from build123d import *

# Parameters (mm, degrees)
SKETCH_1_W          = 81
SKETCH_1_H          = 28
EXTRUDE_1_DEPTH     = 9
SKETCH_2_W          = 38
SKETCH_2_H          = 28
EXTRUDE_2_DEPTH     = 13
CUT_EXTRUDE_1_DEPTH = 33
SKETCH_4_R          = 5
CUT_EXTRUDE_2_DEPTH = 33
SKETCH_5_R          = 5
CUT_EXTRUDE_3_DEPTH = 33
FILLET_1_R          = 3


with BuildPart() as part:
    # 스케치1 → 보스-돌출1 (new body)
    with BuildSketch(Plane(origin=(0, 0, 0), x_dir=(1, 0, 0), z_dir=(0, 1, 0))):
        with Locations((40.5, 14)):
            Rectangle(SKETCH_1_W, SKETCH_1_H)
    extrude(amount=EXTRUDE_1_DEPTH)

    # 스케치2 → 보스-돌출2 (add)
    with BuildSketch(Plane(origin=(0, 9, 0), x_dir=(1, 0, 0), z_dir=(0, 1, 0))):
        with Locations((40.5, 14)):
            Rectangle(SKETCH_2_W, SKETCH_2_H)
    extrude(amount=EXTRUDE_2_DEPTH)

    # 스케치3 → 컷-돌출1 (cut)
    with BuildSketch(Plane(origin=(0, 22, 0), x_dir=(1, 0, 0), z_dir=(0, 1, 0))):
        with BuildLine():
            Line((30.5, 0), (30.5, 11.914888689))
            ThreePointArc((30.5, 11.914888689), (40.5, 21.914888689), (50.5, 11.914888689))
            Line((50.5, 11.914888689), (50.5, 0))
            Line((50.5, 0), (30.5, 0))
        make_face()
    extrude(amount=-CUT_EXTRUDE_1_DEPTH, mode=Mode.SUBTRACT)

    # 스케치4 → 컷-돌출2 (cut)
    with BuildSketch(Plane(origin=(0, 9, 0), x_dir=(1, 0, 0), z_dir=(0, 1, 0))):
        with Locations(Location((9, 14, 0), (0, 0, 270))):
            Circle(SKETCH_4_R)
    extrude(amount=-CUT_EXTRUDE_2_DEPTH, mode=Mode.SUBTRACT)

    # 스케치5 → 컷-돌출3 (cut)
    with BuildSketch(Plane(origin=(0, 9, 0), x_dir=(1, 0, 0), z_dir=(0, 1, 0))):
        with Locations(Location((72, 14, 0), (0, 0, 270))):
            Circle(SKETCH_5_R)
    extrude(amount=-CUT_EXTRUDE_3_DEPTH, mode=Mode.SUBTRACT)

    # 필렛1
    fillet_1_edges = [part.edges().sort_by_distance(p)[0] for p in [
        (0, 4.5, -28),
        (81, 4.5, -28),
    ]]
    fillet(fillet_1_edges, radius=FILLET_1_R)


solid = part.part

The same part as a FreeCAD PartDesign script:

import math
import FreeCAD as App
import Part
import Sketcher
from FreeCAD import Vector


def edges_at(feature, points):
    """Names of the edges that pass closest to the given points."""
    edges = feature.Shape.Edges
    near = lambda p: min(range(len(edges)), key=lambda i: edges[i].distToShape(Part.Vertex(*p))[0])
    return sorted({f"Edge{near(p) + 1}" for p in points})


def add_polygon(sketch, points):
    """Adds a closed chain of lines whose ends are joined by coincident constraints."""
    first, n = sketch.GeometryCount, len(points)
    for a, b in zip(points, points[1:] + points[:1]):
        sketch.addGeometry(Part.LineSegment(App.Vector(*a, 0), App.Vector(*b, 0)), False)
    for i in range(n):
        sketch.addConstraint(Sketcher.Constraint("Coincident", first + i, 2, first + (i + 1) % n, 1))

doc = App.newDocument("Part")
body = doc.addObject("PartDesign::Body", "Body")

sketch1 = body.newObject("Sketcher::SketchObject", "Sketch")
sketch1.AttachmentSupport = (doc.getObject("XZ_Plane"), [""])
sketch1.MapMode = "FlatFace"
add_polygon(sketch1, [(0, -28), (0, 0), (81, 0), (81, -28)])
sketch1.addConstraint([
    Sketcher.Constraint("Vertical", 0),
    Sketcher.Constraint("Horizontal", 1),
    Sketcher.Constraint("Vertical", 2),
    Sketcher.Constraint("Horizontal", 3),
    Sketcher.Constraint("Coincident", 0, 2, -1, 1),
    Sketcher.Constraint("DistanceX", 1, 1, 1, 2, 81.0),
    Sketcher.Constraint("DistanceY", 0, 1, 0, 2, 28.0),
])
pad1 = body.newObject("PartDesign::Pad", "Pad")
pad1.Profile = sketch1
pad1.Length = 9
pad1.Reversed = True

sketch2 = body.newObject("Sketcher::SketchObject", "Sketch001")
sketch2.AttachmentSupport = (doc.getObject("XZ_Plane"), [""])
sketch2.MapMode = "FlatFace"
sketch2.AttachmentOffset = App.Placement(Vector(0, 0, -9), App.Rotation())
add_polygon(sketch2, [(21.5, -28), (21.5, 0), (59.5, 0), (59.5, -28)])
sketch2.addConstraint([
    Sketcher.Constraint("Vertical", 0),
    Sketcher.Constraint("Horizontal", 1),
    Sketcher.Constraint("Vertical", 2),
    Sketcher.Constraint("Horizontal", 3),
    Sketcher.Constraint("PointOnObject", 0, 2, -1),
    Sketcher.Constraint("DistanceX", 1, 1, 1, 2, 38.0),
    Sketcher.Constraint("DistanceY", 0, 1, 0, 2, 28.0),
    Sketcher.Constraint("DistanceX", -1, 1, 0, 2, 21.5),
])
pad2 = body.newObject("PartDesign::Pad", "Pad001")
pad2.Profile = sketch2
pad2.Length = 13
pad2.Reversed = True

sketch3 = body.newObject("Sketcher::SketchObject", "Sketch002")
sketch3.AttachmentSupport = (doc.getObject("XZ_Plane"), [""])
sketch3.MapMode = "FlatFace"
sketch3.AttachmentOffset = App.Placement(Vector(0, 0, -22), App.Rotation())
sketch3.addGeometry([
    Part.LineSegment(Vector(30.5, -11.914889, 0), Vector(30.5, 0, 0)),
    Part.LineSegment(Vector(30.5, 0, 0), Vector(50.5, 0, 0)),
    Part.LineSegment(Vector(50.5, 0, 0), Vector(50.5, -11.914889, 0)),
    Part.ArcOfCircle(Part.Circle(Vector(40.5, -11.914889, 0), Vector(0, 0, 1), 10), math.radians(180), math.radians(360)),
], False)
sketch3.addConstraint([
    Sketcher.Constraint("Coincident", 0, 2, 1, 1),
    Sketcher.Constraint("Coincident", 1, 2, 2, 1),
    Sketcher.Constraint("Tangent", 2, 2, 3, 2),
    Sketcher.Constraint("Tangent", 3, 1, 0, 1),
    Sketcher.Constraint("Vertical", 0),
    Sketcher.Constraint("Horizontal", 1),
    Sketcher.Constraint("Vertical", 2),
    Sketcher.Constraint("PointOnObject", 0, 2, -1),
    Sketcher.Constraint("Radius", 3, 10.0),
    Sketcher.Constraint("DistanceX", -1, 1, 3, 3, 40.5),
    Sketcher.Constraint("DistanceY", 0, 1, 0, 2, 11.914889),
])
pocket1 = body.newObject("PartDesign::Pocket", "Pocket")
pocket1.Profile = sketch3
pocket1.Length = 33
pocket1.Reversed = True

sketch4 = body.newObject("Sketcher::SketchObject", "Sketch003")
sketch4.AttachmentSupport = (doc.getObject("XZ_Plane"), [""])
sketch4.MapMode = "FlatFace"
sketch4.AttachmentOffset = App.Placement(Vector(0, 0, -9), App.Rotation())
sketch4.addGeometry(Part.Circle(Vector(9, -14, 0), Vector(0, 0, 1), 5), False)
sketch4.addConstraint([
    Sketcher.Constraint("Diameter", 0, 10.0),
    Sketcher.Constraint("DistanceX", -1, 1, 0, 3, 9.0),
    Sketcher.Constraint("DistanceY", 0, 3, -1, 1, 14.0),
])
pocket2 = body.newObject("PartDesign::Pocket", "Pocket001")
pocket2.Profile = sketch4
pocket2.Length = 33
pocket2.Reversed = True

sketch5 = body.newObject("Sketcher::SketchObject", "Sketch004")
sketch5.AttachmentSupport = (doc.getObject("XZ_Plane"), [""])
sketch5.MapMode = "FlatFace"
sketch5.AttachmentOffset = App.Placement(Vector(0, 0, -9), App.Rotation())
sketch5.addGeometry(Part.Circle(Vector(72, -14, 0), Vector(0, 0, 1), 5), False)
sketch5.addConstraint([
    Sketcher.Constraint("Diameter", 0, 10.0),
    Sketcher.Constraint("DistanceX", -1, 1, 0, 3, 72.0),
    Sketcher.Constraint("DistanceY", 0, 3, -1, 1, 14.0),
])
pocket3 = body.newObject("PartDesign::Pocket", "Pocket002")
pocket3.Profile = sketch5
pocket3.Length = 33
pocket3.Reversed = True
doc.recompute()

fillet = body.newObject("PartDesign::Fillet", "Fillet")
fillet.Base = (pocket3, edges_at(pocket3, [(0, 4.5, -28), (81, 4.5, -28)]))
fillet.Radius = 3

doc.recompute()
